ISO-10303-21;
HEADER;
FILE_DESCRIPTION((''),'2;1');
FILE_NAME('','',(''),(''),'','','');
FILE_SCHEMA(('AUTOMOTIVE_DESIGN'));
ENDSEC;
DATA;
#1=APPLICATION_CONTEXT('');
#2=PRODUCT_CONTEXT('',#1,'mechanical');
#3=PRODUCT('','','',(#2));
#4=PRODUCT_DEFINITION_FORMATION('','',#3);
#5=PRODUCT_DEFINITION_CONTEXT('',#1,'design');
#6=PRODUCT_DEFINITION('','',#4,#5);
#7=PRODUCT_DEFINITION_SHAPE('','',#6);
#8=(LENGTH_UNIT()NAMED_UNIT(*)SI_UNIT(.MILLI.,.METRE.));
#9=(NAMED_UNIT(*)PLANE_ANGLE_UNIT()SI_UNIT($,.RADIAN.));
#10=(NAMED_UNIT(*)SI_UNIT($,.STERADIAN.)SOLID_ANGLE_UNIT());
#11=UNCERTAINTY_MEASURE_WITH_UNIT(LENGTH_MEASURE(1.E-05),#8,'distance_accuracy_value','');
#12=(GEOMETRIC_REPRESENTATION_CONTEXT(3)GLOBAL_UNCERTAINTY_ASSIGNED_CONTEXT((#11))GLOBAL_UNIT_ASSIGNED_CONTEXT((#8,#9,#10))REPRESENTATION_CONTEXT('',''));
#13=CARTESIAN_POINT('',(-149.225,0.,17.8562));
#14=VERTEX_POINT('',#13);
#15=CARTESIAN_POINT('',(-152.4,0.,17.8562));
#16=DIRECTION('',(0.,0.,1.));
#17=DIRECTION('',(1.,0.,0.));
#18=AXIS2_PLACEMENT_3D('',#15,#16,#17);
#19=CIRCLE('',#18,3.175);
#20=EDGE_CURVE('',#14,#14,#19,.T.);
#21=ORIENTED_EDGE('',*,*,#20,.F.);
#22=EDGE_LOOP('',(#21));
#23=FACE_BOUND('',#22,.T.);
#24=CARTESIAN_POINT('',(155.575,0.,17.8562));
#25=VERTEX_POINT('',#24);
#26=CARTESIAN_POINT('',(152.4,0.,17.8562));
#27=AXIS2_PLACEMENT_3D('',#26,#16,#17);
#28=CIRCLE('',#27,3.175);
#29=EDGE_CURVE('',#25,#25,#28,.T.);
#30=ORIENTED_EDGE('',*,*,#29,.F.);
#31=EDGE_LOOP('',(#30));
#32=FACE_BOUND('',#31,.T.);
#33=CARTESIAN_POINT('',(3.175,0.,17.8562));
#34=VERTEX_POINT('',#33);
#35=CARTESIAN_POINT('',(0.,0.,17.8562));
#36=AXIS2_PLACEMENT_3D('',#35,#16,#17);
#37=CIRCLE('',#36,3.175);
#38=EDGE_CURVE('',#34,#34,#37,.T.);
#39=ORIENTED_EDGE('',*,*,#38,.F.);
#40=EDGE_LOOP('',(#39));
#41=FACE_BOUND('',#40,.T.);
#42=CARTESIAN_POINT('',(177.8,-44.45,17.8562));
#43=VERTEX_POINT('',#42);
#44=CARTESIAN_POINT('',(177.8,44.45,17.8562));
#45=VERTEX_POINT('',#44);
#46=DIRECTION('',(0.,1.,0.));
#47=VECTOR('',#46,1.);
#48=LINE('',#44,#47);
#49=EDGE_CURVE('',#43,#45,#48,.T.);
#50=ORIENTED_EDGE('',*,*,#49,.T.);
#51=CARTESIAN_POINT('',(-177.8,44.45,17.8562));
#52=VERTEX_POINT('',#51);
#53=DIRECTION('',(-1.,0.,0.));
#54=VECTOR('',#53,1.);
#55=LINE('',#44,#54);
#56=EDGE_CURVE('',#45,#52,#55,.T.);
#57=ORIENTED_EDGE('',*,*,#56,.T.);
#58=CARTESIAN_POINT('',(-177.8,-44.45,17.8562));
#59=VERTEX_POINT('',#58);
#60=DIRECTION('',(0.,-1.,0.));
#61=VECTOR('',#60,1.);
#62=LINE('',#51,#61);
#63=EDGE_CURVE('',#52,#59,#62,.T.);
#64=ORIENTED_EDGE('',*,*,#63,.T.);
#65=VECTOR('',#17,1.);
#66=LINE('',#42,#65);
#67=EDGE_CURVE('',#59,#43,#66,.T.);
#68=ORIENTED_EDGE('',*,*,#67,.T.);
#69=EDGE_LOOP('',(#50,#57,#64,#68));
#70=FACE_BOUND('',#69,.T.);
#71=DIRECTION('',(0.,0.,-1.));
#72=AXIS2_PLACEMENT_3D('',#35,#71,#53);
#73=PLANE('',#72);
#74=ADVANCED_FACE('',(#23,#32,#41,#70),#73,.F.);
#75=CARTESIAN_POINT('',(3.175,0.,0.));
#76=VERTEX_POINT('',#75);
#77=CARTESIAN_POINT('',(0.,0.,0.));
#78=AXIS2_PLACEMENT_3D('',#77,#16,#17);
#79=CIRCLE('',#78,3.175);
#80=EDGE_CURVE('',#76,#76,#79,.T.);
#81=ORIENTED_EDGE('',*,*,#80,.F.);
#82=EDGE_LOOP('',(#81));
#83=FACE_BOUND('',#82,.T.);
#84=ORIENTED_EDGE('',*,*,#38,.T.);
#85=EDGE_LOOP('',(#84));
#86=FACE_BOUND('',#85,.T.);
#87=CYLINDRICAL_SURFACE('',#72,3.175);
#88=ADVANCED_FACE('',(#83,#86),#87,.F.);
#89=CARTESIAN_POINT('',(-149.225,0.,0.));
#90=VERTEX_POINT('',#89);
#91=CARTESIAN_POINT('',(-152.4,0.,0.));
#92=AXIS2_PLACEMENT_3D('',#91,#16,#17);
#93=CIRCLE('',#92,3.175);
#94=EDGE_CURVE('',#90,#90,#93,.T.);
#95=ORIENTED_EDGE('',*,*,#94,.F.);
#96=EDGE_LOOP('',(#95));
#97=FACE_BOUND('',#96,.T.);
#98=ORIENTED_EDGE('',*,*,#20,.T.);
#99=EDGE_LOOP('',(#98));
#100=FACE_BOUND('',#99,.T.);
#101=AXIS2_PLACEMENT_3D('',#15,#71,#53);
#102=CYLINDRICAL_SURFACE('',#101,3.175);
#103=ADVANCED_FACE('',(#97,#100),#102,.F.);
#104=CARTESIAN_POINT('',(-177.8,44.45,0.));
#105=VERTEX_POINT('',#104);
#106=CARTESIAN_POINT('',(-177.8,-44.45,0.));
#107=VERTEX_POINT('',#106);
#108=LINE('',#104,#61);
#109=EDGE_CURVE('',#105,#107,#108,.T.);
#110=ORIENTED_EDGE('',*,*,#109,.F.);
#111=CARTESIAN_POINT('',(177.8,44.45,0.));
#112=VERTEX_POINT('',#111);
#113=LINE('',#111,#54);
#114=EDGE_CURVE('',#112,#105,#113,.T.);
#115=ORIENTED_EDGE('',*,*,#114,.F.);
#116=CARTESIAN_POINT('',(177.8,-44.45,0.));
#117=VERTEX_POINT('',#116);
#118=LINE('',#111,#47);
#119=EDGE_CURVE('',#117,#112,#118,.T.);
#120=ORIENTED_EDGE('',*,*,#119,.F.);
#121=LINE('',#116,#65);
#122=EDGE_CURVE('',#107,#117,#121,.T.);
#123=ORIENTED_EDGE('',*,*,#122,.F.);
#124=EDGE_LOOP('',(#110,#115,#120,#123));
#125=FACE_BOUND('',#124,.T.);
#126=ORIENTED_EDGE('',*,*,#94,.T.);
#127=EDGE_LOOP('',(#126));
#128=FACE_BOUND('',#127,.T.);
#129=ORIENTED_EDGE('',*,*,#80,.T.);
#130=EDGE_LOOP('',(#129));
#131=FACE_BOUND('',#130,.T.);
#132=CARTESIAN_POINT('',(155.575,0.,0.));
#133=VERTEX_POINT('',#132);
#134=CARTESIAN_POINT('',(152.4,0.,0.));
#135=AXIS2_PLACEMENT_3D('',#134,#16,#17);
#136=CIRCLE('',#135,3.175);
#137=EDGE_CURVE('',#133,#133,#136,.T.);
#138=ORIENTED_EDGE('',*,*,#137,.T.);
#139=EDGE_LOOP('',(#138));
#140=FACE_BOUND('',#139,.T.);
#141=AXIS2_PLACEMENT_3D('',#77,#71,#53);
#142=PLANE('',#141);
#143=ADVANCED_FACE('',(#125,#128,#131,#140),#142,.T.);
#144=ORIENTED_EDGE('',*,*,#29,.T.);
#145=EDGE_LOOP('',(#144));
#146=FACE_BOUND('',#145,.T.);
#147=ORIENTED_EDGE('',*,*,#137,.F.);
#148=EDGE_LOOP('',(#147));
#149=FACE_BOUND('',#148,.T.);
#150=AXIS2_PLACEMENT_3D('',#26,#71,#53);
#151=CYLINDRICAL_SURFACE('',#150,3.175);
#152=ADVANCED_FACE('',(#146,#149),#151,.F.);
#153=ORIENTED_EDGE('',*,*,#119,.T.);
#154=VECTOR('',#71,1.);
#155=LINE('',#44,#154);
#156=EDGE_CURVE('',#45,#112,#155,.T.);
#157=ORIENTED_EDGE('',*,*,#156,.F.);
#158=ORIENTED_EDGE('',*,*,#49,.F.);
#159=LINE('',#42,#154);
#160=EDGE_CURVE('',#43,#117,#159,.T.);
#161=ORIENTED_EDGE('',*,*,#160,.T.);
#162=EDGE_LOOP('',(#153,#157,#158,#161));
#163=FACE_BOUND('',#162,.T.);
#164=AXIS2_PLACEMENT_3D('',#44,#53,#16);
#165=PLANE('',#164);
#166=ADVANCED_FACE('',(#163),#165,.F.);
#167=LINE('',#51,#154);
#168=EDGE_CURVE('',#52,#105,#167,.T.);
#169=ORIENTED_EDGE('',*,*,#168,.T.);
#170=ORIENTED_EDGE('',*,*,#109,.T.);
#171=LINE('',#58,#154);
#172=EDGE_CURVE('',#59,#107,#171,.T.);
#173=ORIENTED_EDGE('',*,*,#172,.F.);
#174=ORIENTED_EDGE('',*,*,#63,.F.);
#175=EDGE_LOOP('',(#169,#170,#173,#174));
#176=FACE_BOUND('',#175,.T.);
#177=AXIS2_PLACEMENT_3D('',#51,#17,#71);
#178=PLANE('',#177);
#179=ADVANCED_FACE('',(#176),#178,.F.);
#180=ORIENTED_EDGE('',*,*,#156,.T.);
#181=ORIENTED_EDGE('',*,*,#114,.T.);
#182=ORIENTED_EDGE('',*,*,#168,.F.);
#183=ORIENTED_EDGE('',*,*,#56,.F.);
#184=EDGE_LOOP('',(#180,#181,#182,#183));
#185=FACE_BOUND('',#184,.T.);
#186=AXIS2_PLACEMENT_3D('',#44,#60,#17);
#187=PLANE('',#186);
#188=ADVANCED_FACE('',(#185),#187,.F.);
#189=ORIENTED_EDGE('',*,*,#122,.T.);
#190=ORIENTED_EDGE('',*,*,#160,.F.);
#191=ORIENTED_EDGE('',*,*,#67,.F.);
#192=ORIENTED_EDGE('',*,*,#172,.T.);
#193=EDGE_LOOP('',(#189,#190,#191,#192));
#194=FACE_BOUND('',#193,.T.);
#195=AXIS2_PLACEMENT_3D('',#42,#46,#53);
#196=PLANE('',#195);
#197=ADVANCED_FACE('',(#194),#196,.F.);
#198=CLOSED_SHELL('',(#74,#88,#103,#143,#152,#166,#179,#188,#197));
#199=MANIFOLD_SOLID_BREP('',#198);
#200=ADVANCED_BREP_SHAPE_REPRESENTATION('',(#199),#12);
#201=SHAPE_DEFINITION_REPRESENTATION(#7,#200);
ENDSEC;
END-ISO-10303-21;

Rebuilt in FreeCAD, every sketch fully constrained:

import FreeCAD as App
import Part
import Sketcher
Q = App.Units.Quantity


def add_polygon(sketch, points):
    """Adds a closed chain of lines whose ends are joined by coincident constraints."""
    first, n = sketch.GeometryCount, len(points)
    for a, b in zip(points, points[1:] + points[:1]):
        sketch.addGeometry(Part.LineSegment(App.Vector(*a, 0), App.Vector(*b, 0)), False)
    for i in range(n):
        sketch.addConstraint(Sketcher.Constraint("Coincident", first + i, 2, first + (i + 1) % n, 1))

doc = App.newDocument("Part")
body = doc.addObject("PartDesign::Body", "Body")

# Sketch on XY plane
sketch1 = body.newObject("Sketcher::SketchObject", "Sketch")
sketch1.AttachmentSupport = (doc.getObject("XY_Plane"), [""])
sketch1.MapMode = "FlatFace"
add_polygon(sketch1, [(-177.8, 44.45), (-177.8, -44.45), (177.8, -44.45), (177.8, 44.45)])  # lines 0-3
sketch1.addGeometry(Part.Circle(App.Vector(-152.4, 0, 0), App.Vector(0, 0, 1), 3.175), False)  # 4
sketch1.addGeometry(Part.Circle(App.Vector(0, 0, 0), App.Vector(0, 0, 1), 3.175), False)  # 5
sketch1.addGeometry(Part.Circle(App.Vector(152.4, 0, 0), App.Vector(0, 0, 1), 3.175), False)  # 6
sketch1.addConstraint([
    Sketcher.Constraint("Vertical", 0),
    Sketcher.Constraint("Horizontal", 1),
    Sketcher.Constraint("Vertical", 2),
    Sketcher.Constraint("Horizontal", 3),
    Sketcher.Constraint("Coincident", 5, 3, -1, 1),
    Sketcher.Constraint("Equal", 4, 5),
    Sketcher.Constraint("Equal", 5, 6),
    Sketcher.Constraint("Symmetric", 4, 3, 6, 3, -1, 1),
    Sketcher.Constraint("Symmetric", 0, 2, 2, 2, -1, 1),
    Sketcher.Constraint("PointOnObject", 4, 3, -1),
    Sketcher.Constraint("Diameter", 4, Q("0.25 in")),
    Sketcher.Constraint("DistanceX", 1, 1, 1, 2, Q("14 in")),
    Sketcher.Constraint("DistanceY", 0, 2, 0, 1, Q("3.5 in")),
    Sketcher.Constraint("DistanceX", 4, 3, -1, 1, Q("6 in")),
])
pad1 = body.newObject("PartDesign::Pad", "Pad")
pad1.Profile = sketch1
pad1.Length = Q("0.703 in")

doc.recompute()
